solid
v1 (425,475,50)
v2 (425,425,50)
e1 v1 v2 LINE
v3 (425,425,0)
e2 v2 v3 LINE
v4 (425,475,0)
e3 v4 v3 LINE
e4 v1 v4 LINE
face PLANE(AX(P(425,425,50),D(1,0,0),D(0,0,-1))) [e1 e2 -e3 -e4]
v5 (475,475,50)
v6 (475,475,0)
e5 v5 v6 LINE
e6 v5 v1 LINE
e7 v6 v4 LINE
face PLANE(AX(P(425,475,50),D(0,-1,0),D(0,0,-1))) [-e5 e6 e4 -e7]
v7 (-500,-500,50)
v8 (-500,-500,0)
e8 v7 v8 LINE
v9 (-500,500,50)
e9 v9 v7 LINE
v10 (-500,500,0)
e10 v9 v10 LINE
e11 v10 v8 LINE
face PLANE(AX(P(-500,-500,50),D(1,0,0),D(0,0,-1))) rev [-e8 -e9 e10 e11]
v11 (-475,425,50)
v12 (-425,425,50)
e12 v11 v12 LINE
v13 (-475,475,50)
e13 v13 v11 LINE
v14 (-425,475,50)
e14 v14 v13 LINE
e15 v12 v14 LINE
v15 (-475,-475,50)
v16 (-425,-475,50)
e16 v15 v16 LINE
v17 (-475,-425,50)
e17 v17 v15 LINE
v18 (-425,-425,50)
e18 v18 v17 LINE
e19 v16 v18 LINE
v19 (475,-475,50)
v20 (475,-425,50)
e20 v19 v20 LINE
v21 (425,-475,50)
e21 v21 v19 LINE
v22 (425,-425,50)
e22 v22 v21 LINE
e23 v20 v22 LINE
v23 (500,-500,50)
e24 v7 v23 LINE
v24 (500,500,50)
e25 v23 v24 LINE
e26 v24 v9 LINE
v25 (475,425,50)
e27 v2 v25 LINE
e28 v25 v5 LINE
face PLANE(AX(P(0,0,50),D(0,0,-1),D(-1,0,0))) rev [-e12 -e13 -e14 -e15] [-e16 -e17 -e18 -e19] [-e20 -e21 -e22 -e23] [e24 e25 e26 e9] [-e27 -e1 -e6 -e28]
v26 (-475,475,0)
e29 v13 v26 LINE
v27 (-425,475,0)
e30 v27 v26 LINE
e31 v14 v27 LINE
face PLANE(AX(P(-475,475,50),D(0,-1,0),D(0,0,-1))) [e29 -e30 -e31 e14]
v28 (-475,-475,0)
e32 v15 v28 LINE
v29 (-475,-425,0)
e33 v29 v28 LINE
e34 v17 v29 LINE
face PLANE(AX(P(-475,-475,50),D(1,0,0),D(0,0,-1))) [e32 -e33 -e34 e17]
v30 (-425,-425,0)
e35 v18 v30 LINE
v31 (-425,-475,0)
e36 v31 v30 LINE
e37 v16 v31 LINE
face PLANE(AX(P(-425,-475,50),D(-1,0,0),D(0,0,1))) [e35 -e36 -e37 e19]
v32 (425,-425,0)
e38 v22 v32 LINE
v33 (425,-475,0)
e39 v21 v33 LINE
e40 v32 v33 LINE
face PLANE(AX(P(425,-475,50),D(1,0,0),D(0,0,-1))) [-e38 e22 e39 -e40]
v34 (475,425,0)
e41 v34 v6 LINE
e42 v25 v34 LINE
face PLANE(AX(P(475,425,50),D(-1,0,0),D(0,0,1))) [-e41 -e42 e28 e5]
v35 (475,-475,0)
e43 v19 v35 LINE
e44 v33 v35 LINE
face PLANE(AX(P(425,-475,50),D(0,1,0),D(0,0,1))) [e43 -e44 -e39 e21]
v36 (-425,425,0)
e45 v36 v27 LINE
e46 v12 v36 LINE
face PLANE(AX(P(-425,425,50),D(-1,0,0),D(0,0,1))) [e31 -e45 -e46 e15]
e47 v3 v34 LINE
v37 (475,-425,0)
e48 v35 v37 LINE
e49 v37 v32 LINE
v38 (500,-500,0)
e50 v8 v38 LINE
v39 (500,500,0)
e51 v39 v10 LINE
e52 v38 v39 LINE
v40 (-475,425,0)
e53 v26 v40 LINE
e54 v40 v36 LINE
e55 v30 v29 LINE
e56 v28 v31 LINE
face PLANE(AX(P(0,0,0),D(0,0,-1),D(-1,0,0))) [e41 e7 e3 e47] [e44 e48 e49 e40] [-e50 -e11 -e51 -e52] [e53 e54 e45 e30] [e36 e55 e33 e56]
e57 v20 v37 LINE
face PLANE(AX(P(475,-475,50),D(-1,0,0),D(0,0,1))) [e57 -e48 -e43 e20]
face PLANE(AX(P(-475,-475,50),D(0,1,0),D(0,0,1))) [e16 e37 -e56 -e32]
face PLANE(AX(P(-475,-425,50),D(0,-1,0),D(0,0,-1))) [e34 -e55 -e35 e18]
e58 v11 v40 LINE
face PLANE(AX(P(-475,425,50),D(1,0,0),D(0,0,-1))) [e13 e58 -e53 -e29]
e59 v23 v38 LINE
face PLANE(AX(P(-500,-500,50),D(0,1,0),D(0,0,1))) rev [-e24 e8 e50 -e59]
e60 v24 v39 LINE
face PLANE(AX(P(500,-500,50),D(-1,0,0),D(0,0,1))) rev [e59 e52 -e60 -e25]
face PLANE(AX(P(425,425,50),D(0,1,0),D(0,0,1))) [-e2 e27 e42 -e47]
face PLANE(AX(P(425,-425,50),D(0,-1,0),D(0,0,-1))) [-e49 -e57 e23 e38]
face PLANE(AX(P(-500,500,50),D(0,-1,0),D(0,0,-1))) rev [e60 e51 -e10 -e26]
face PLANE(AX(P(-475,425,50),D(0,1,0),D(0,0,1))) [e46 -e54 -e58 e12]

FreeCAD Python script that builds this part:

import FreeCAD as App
import Part
import Sketcher

V = App.Vector

doc = App.newDocument("Part")
body = doc.addObject("PartDesign::Body", "Body")

# Sketch on XY plane
sketch1 = body.newObject("Sketcher::SketchObject", "Sketch")
sketch1.AttachmentSupport = (doc.getObject("XY_Plane"), [""])
sketch1.MapMode = "FlatFace"
sketch1.addGeometry(Part.LineSegment(V(-500, 500, 0), V(-500, -500, 0)), False)
sketch1.addGeometry(Part.LineSegment(V(-500, -500, 0), V(500, -500, 0)), False)
sketch1.addGeometry(Part.LineSegment(V(500, -500, 0), V(500, 500, 0)), False)
sketch1.addGeometry(Part.LineSegment(V(500, 500, 0), V(-500, 500, 0)), False)
sketch1.addConstraint(Sketcher.Constraint("Coincident", 0, 2, 1, 1))
sketch1.addConstraint(Sketcher.Constraint("Coincident", 1, 2, 2, 1))
sketch1.addConstraint(Sketcher.Constraint("Coincident", 2, 2, 3, 1))
sketch1.addConstraint(Sketcher.Constraint("Coincident", 3, 2, 0, 1))
sketch1.addConstraint(Sketcher.Constraint("Vertical", 0))
sketch1.addConstraint(Sketcher.Constraint("Horizontal", 1))
sketch1.addConstraint(Sketcher.Constraint("Vertical", 2))
sketch1.addConstraint(Sketcher.Constraint("Horizontal", 3))
sketch1.addConstraint(Sketcher.Constraint("Symmetric", 0, 2, 2, 2, -1, 1))
sketch1.addConstraint(Sketcher.Constraint("Equal", 3, 0))
sketch1.addConstraint(Sketcher.Constraint("DistanceX", 1, 1, 1, 2, 1000.0))
pad1 = body.newObject("PartDesign::Pad", "Pad")
pad1.Profile = sketch1
pad1.Length = 50

# Sketch on XY plane
sketch2 = body.newObject("Sketcher::SketchObject", "Sketch001")
sketch2.AttachmentSupport = (doc.getObject("XY_Plane"), [""])
sketch2.MapMode = "FlatFace"
sketch2.addGeometry(Part.LineSegment(V(425, 475, 0), V(425, 425, 0)), False)
sketch2.addGeometry(Part.LineSegment(V(425, 425, 0), V(475, 425, 0)), False)
sketch2.addGeometry(Part.LineSegment(V(475, 425, 0), V(475, 475, 0)), False)
sketch2.addGeometry(Part.LineSegment(V(475, 475, 0), V(425, 475, 0)), False)
sketch2.addConstraint(Sketcher.Constraint("Coincident", 0, 2, 1, 1))
sketch2.addConstraint(Sketcher.Constraint("Coincident", 1, 2, 2, 1))
sketch2.addConstraint(Sketcher.Constraint("Coincident", 2, 2, 3, 1))
sketch2.addConstraint(Sketcher.Constraint("Coincident", 3, 2, 0, 1))
sketch2.addConstraint(Sketcher.Constraint("Vertical", 0))
sketch2.addConstraint(Sketcher.Constraint("Horizontal", 1))
sketch2.addConstraint(Sketcher.Constraint("Vertical", 2))
sketch2.addConstraint(Sketcher.Constraint("Horizontal", 3))
sketch2.addConstraint(Sketcher.Constraint("Equal", 3, 0))
sketch2.addConstraint(Sketcher.Constraint("DistanceX", 1, 1, 1, 2, 50.0))
sketch2.addConstraint(Sketcher.Constraint("DistanceX", -1, 1, 0, 2, 425.0))
sketch2.addConstraint(Sketcher.Constraint("DistanceY", -1, 1, 0, 2, 425.0))
pocket1 = body.newObject("PartDesign::Pocket", "Pocket")
pocket1.Profile = sketch2
pocket1.Type = "ThroughAll"
pocket1.Reversed = True

# Sketch on XY plane
sketch3 = body.newObject("Sketcher::SketchObject", "Sketch002")
sketch3.AttachmentSupport = (doc.getObject("XY_Plane"), [""])
sketch3.MapMode = "FlatFace"
sketch3.addGeometry(Part.LineSegment(V(-475, 475, 0), V(-475, 425, 0)), False)
sketch3.addGeometry(Part.LineSegment(V(-475, 425, 0), V(-425, 425, 0)), False)
sketch3.addGeometry(Part.LineSegment(V(-425, 425, 0), V(-425, 475, 0)), False)
sketch3.addGeometry(Part.LineSegment(V(-425, 475, 0), V(-475, 475, 0)), False)
sketch3.addConstraint(Sketcher.Constraint("Coincident", 0, 2, 1, 1))
sketch3.addConstraint(Sketcher.Constraint("Coincident", 1, 2, 2, 1))
sketch3.addConstraint(Sketcher.Constraint("Coincident", 2, 2, 3, 1))
sketch3.addConstraint(Sketcher.Constraint("Coincident", 3, 2, 0, 1))
sketch3.addConstraint(Sketcher.Constraint("Vertical", 0))
sketch3.addConstraint(Sketcher.Constraint("Horizontal", 1))
sketch3.addConstraint(Sketcher.Constraint("Vertical", 2))
sketch3.addConstraint(Sketcher.Constraint("Horizontal", 3))
sketch3.addConstraint(Sketcher.Constraint("Equal", 3, 0))
sketch3.addConstraint(Sketcher.Constraint("DistanceX", 1, 1, 1, 2, 50.0))
sketch3.addConstraint(Sketcher.Constraint("DistanceX", 0, 2, -1, 1, 475.0))
sketch3.addConstraint(Sketcher.Constraint("DistanceY", -1, 1, 0, 2, 425.0))
pocket2 = body.newObject("PartDesign::Pocket", "Pocket001")
pocket2.Profile = sketch3
pocket2.Type = "ThroughAll"
pocket2.Reversed = True

# Sketch on XY plane
sketch4 = body.newObject("Sketcher::SketchObject", "Sketch003")
sketch4.AttachmentSupport = (doc.getObject("XY_Plane"), [""])
sketch4.MapMode = "FlatFace"
sketch4.addGeometry(Part.LineSegment(V(425, -425, 0), V(425, -475, 0)), False)
sketch4.addGeometry(Part.LineSegment(V(425, -475, 0), V(475, -475, 0)), False)
sketch4.addGeometry(Part.LineSegment(V(475, -475, 0), V(475, -425, 0)), False)
sketch4.addGeometry(Part.LineSegment(V(475, -425, 0), V(425, -425, 0)), False)
sketch4.addConstraint(Sketcher.Constraint("Coincident", 0, 2, 1, 1))
sketch4.addConstraint(Sketcher.Constraint("Coincident", 1, 2, 2, 1))
sketch4.addConstraint(Sketcher.Constraint("Coincident", 2, 2, 3, 1))
sketch4.addConstraint(Sketcher.Constraint("Coincident", 3, 2, 0, 1))
sketch4.addConstraint(Sketcher.Constraint("Vertical", 0))
sketch4.addConstraint(Sketcher.Constraint("Horizontal", 1))
sketch4.addConstraint(Sketcher.Constraint("Vertical", 2))
sketch4.addConstraint(Sketcher.Constraint("Horizontal", 3))
sketch4.addConstraint(Sketcher.Constraint("Equal", 3, 0))
sketch4.addConstraint(Sketcher.Constraint("DistanceX", 1, 1, 1, 2, 50.0))
sketch4.addConstraint(Sketcher.Constraint("DistanceX", -1, 1, 0, 2, 425.0))
sketch4.addConstraint(Sketcher.Constraint("DistanceY", 0, 2, -1, 1, 475.0))
pocket3 = body.newObject("PartDesign::Pocket", "Pocket002")
pocket3.Profile = sketch4
pocket3.Type = "ThroughAll"
pocket3.Reversed = True

# Sketch on XY plane
sketch5 = body.newObject("Sketcher::SketchObject", "Sketch004")
sketch5.AttachmentSupport = (doc.getObject("XY_Plane"), [""])
sketch5.MapMode = "FlatFace"
sketch5.addGeometry(Part.LineSegment(V(-475, -425, 0), V(-475, -475, 0)), False)
sketch5.addGeometry(Part.LineSegment(V(-475, -475, 0), V(-425, -475, 0)), False)
sketch5.addGeometry(Part.LineSegment(V(-425, -475, 0), V(-425, -425, 0)), False)
sketch5.addGeometry(Part.LineSegment(V(-425, -425, 0), V(-475, -425, 0)), False)
sketch5.addConstraint(Sketcher.Constraint("Coincident", 0, 2, 1, 1))
sketch5.addConstraint(Sketcher.Constraint("Coincident", 1, 2, 2, 1))
sketch5.addConstraint(Sketcher.Constraint("Coincident", 2, 2, 3, 1))
sketch5.addConstraint(Sketcher.Constraint("Coincident", 3, 2, 0, 1))
sketch5.addConstraint(Sketcher.Constraint("Vertical", 0))
sketch5.addConstraint(Sketcher.Constraint("Horizontal", 1))
sketch5.addConstraint(Sketcher.Constraint("Vertical", 2))
sketch5.addConstraint(Sketcher.Constraint("Horizontal", 3))
sketch5.addConstraint(Sketcher.Constraint("Equal", 3, 0))
sketch5.addConstraint(Sketcher.Constraint("DistanceX", 1, 1, 1, 2, 50.0))
sketch5.addConstraint(Sketcher.Constraint("DistanceX", 0, 2, -1, 1, 475.0))
sketch5.addConstraint(Sketcher.Constraint("DistanceY", 0, 2, -1, 1, 475.0))
pocket4 = body.newObject("PartDesign::Pocket", "Pocket003")
pocket4.Profile = sketch5
pocket4.Type = "ThroughAll"
pocket4.Reversed = True

doc.recompute()
